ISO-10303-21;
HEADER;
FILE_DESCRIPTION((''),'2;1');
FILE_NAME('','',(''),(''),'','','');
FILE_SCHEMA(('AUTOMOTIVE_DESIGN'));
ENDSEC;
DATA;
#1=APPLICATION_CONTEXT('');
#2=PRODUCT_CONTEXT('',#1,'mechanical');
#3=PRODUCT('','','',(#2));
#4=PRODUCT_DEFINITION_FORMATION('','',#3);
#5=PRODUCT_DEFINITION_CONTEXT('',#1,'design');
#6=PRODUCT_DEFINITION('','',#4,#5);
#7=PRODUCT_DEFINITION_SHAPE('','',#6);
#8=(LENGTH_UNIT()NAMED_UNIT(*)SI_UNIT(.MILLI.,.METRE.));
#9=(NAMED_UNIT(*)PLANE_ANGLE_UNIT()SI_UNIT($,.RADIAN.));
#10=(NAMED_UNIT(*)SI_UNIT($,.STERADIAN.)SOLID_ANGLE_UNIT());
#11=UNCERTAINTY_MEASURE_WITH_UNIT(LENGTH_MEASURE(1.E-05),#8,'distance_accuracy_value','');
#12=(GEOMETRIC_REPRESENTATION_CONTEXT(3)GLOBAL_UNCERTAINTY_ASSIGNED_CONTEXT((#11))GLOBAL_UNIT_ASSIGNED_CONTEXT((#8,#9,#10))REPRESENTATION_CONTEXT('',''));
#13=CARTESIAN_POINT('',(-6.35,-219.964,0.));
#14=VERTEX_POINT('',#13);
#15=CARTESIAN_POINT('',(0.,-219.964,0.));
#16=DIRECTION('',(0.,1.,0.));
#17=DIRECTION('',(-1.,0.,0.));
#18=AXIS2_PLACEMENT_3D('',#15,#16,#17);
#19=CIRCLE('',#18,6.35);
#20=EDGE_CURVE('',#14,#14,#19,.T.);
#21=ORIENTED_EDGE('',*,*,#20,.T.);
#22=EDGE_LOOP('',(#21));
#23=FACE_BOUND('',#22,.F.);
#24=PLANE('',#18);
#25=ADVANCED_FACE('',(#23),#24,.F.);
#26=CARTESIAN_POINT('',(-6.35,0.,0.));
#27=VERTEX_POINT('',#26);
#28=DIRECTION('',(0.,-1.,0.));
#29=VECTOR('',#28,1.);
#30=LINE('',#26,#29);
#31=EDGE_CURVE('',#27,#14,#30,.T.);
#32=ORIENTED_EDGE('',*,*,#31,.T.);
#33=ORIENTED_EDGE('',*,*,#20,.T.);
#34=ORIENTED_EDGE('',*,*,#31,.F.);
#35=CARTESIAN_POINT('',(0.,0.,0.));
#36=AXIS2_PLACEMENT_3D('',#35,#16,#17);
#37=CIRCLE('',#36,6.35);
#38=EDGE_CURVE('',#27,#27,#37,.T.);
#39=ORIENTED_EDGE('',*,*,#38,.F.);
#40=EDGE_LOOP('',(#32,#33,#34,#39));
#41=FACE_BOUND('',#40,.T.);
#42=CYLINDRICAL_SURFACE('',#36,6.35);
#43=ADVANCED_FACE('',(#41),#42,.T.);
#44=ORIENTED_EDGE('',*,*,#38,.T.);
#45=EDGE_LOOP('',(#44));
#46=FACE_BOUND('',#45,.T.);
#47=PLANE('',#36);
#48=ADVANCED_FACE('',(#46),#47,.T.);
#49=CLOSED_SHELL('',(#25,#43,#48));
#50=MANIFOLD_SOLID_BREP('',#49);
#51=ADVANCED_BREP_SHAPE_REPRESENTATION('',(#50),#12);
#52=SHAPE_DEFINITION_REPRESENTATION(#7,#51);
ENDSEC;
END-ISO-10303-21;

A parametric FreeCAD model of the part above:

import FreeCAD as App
import Part
import Sketcher

V = App.Vector
Q = App.Units.Quantity

doc = App.newDocument("Part")
body = doc.addObject("PartDesign::Body", "Body")

# Sketch on XZ plane
sketch1 = body.newObject("Sketcher::SketchObject", "Sketch")
sketch1.AttachmentSupport = (doc.getObject("XZ_Plane"), [""])
sketch1.MapMode = "FlatFace"
sketch1.addGeometry(Part.Circle(V(0, 0, 0), V(0, 0, 1), 6), False)
sketch1.addConstraint(Sketcher.Constraint("Coincident", 0, 3, -1, 1))
sketch1.addConstraint(Sketcher.Constraint("Diameter", 0, Q("0.5 in")))
pad1 = body.newObject("PartDesign::Pad", "Pad")
pad1.Profile = sketch1
pad1.Length = Q("8.66 in")

doc.recompute()
